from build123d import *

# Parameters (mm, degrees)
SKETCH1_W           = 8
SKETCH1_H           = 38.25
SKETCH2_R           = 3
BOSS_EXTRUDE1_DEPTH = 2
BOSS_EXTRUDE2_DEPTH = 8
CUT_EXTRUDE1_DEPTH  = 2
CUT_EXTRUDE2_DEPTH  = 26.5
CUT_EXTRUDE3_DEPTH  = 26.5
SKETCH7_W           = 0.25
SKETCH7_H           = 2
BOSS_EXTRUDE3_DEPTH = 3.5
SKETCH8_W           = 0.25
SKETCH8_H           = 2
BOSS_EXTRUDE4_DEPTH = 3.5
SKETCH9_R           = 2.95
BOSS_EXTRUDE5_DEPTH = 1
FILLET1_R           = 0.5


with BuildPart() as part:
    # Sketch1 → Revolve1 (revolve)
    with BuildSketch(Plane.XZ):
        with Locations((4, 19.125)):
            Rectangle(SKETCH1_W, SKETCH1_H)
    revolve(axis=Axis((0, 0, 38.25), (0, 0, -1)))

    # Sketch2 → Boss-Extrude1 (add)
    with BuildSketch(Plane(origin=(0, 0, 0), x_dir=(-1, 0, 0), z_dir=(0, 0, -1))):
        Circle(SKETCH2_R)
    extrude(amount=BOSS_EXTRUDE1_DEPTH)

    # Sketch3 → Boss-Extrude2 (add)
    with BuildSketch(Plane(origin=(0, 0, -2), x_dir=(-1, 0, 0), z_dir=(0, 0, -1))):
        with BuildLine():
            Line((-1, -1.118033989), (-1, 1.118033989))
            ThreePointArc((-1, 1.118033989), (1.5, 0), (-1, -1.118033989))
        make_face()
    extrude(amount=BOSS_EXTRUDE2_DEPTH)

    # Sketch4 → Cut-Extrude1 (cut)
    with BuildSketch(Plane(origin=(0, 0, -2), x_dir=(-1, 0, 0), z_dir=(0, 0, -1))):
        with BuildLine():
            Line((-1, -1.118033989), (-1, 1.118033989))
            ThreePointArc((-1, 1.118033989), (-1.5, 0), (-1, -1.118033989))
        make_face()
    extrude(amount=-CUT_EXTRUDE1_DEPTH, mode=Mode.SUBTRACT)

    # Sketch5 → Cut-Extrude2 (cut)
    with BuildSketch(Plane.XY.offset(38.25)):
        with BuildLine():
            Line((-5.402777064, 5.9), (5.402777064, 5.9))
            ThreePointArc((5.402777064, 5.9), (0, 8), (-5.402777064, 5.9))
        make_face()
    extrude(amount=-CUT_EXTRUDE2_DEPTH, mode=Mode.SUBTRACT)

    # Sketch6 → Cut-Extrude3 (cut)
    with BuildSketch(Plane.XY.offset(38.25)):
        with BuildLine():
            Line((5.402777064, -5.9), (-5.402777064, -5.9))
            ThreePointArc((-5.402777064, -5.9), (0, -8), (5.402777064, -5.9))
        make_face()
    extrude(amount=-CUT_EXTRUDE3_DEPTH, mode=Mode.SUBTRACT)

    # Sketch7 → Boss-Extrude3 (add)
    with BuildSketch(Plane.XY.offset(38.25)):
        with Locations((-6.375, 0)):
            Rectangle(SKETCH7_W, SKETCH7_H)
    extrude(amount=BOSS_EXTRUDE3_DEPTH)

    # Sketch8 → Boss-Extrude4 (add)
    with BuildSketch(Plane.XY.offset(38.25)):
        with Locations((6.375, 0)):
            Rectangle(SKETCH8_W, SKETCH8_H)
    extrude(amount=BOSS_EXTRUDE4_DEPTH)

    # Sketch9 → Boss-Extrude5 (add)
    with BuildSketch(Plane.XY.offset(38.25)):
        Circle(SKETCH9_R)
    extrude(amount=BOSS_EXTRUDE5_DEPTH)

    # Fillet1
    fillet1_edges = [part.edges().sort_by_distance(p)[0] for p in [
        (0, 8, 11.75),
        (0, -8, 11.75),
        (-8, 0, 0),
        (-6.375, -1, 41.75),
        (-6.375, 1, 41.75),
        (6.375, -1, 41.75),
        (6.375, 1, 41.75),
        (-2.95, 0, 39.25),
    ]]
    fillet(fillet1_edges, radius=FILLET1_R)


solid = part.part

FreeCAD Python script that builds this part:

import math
import FreeCAD as App
import Part
import Sketcher
from FreeCAD import Vector
Q = App.Units.Quantity


def edges_at(feature, points):
    """Names of the edges that pass closest to the given points."""
    edges = feature.Shape.Edges
    near = lambda p: min(range(len(edges)), key=lambda i: edges[i].distToShape(Part.Vertex(*p))[0])
    return sorted({f"Edge{near(p) + 1}" for p in points})

doc = App.newDocument("Part")
body = doc.addObject("PartDesign::Body", "Body")

sketch1 = body.newObject("Sketcher::SketchObject", "Sketch")
sketch1.AttachmentSupport = (doc.getObject("XZ_Plane"), [""])
sketch1.MapMode = "FlatFace"
sketch1.addGeometry([
    Part.LineSegment(Vector(0, 38.25, 0), Vector(0, 0, 0)),
    Part.LineSegment(Vector(0, 0, 0), Vector(8, 0, 0)),
    Part.LineSegment(Vector(8, 0, 0), Vector(8, 38.25, 0)),
    Part.LineSegment(Vector(8, 38.25, 0), Vector(0, 38.25, 0)),
], False)
sketch1.addConstraint([
    Sketcher.Constraint("Coincident", 0, 2, 1, 1),
    Sketcher.Constraint("Coincident", 1, 2, 2, 1),
    Sketcher.Constraint("Coincident", 2, 2, 3, 1),
    Sketcher.Constraint("Coincident", 3, 2, 0, 1),
    Sketcher.Constraint("Vertical", 0),
    Sketcher.Constraint("Horizontal", 1),
    Sketcher.Constraint("Vertical", 2),
    Sketcher.Constraint("Horizontal", 3),
    Sketcher.Constraint("Coincident", 0, 2, -1, 1),
    Sketcher.Constraint("DistanceX", 1, 1, 1, 2, Q("8 mm")),
    Sketcher.Constraint("DistanceY", 0, 2, 0, 1, Q("38.25 mm")),
])
revolution = body.newObject("PartDesign::Revolution", "Revolution")
revolution.Profile = sketch1
revolution.ReferenceAxis = (sketch1, ["V_Axis"])
revolution.Angle = 360

sketch2 = body.newObject("Sketcher::SketchObject", "Sketch001")
sketch2.AttachmentSupport = (doc.getObject("XY_Plane"), [""])
sketch2.MapMode = "FlatFace"
sketch2.addGeometry(Part.Circle(Vector(0, 0, 0), Vector(0, 0, 1), 3), False)
sketch2.addConstraint([
    Sketcher.Constraint("Coincident", 0, 3, -1, 1),
    Sketcher.Constraint("Diameter", 0, Q("6 mm")),
])
pad1 = body.newObject("PartDesign::Pad", "Pad")
pad1.Profile = sketch2
pad1.Length = 2
pad1.Reversed = True

sketch3 = body.newObject("Sketcher::SketchObject", "Sketch002")
sketch3.AttachmentSupport = (doc.getObject("XY_Plane"), [""])
sketch3.MapMode = "FlatFace"
sketch3.AttachmentOffset = App.Placement(Vector(0, 0, -2), App.Rotation())
sketch3.addGeometry([
    Part.LineSegment(Vector(1, 1.118034, 0), Vector(1, -1.118034, 0)),
    Part.ArcOfCircle(Part.Circle(Vector(0, 0, 0), Vector(0, 0, 1), 1.5), math.radians(48.189685), math.radians(311.810315)),
], False)
sketch3.addConstraint([
    Sketcher.Constraint("Coincident", 0, 1, 1, 1),
    Sketcher.Constraint("Coincident", 1, 2, 0, 2),
    Sketcher.Constraint("Vertical", 0),
    Sketcher.Constraint("Coincident", 1, 3, -1, 1),
    Sketcher.Constraint("Radius", 1, Q("1.5 mm")),
    Sketcher.Constraint("DistanceX", -1, 1, 0, 1, Q("1 mm")),
])
pad2 = body.newObject("PartDesign::Pad", "Pad001")
pad2.Profile = sketch3
pad2.Length = 8
pad2.Reversed = True

sketch4 = body.newObject("Sketcher::SketchObject", "Sketch003")
sketch4.AttachmentSupport = (doc.getObject("XY_Plane"), [""])
sketch4.MapMode = "FlatFace"
sketch4.AttachmentOffset = App.Placement(Vector(0, 0, -2), App.Rotation())
sketch4.addGeometry([
    Part.LineSegment(Vector(1, -1.118034, 0), Vector(1, 1.118034, 0)),
    Part.ArcOfCircle(Part.Circle(Vector(0, 0, 0), Vector(0, 0, 1), 1.5), math.radians(-48.189685), math.radians(48.189685)),
], False)
sketch4.addConstraint([
    Sketcher.Constraint("Coincident", 0, 1, 1, 1),
    Sketcher.Constraint("Coincident", 1, 2, 0, 2),
    Sketcher.Constraint("Vertical", 0),
    Sketcher.Constraint("Coincident", 1, 3, -1, 1),
    Sketcher.Constraint("Radius", 1, Q("1.5 mm")),
    Sketcher.Constraint("DistanceX", -1, 1, 0, 1, Q("1 mm")),
])
pocket1 = body.newObject("PartDesign::Pocket", "Pocket")
pocket1.Profile = sketch4
pocket1.Length = 2
pocket1.Reversed = True

sketch5 = body.newObject("Sketcher::SketchObject", "Sketch004")
sketch5.AttachmentSupport = (doc.getObject("XY_Plane"), [""])
sketch5.MapMode = "FlatFace"
sketch5.AttachmentOffset = App.Placement(Vector(0, 0, 38.25), App.Rotation())
sketch5.addGeometry([
    Part.LineSegment(Vector(-5.402777, 5.9, 0), Vector(5.402777, 5.9, 0)),
    Part.ArcOfCircle(Part.Circle(Vector(0, 0, 0), Vector(0, 0, 1), 8), math.radians(47.518887), math.radians(132.481113)),
], False)
sketch5.addConstraint([
    Sketcher.Constraint("Coincident", 0, 1, 1, 2),
    Sketcher.Constraint("Coincident", 1, 1, 0, 2),
    Sketcher.Constraint("Horizontal", 0),
    Sketcher.Constraint("Coincident", 1, 3, -1, 1),
    Sketcher.Constraint("Radius", 1, Q("8 mm")),
    Sketcher.Constraint("DistanceY", -1, 1, 0, 1, Q("5.9 mm")),
])
pocket2 = body.newObject("PartDesign::Pocket", "Pocket001")
pocket2.Profile = sketch5
pocket2.Length = 26.5

sketch6 = body.newObject("Sketcher::SketchObject", "Sketch005")
sketch6.AttachmentSupport = (doc.getObject("XY_Plane"), [""])
sketch6.MapMode = "FlatFace"
sketch6.AttachmentOffset = App.Placement(Vector(0, 0, 38.25), App.Rotation())
sketch6.addGeometry([
    Part.LineSegment(Vector(5.402777, -5.9, 0), Vector(-5.402777, -5.9, 0)),
    Part.ArcOfCircle(Part.Circle(Vector(0, 0, 0), Vector(0, 0, 1), 8), math.radians(-132.481113), math.radians(-47.518887)),
], False)
sketch6.addConstraint([
    Sketcher.Constraint("Coincident", 0, 1, 1, 2),
    Sketcher.Constraint("Coincident", 1, 1, 0, 2),
    Sketcher.Constraint("Horizontal", 0),
    Sketcher.Constraint("Coincident", 1, 3, -1, 1),
    Sketcher.Constraint("Radius", 1, Q("8 mm")),
    Sketcher.Constraint("DistanceY", 0, 1, -1, 1, Q("5.9 mm")),
])
pocket3 = body.newObject("PartDesign::Pocket", "Pocket002")
pocket3.Profile = sketch6
pocket3.Length = 26.5

sketch7 = body.newObject("Sketcher::SketchObject", "Sketch006")
sketch7.AttachmentSupport = (doc.getObject("XY_Plane"), [""])
sketch7.MapMode = "FlatFace"
sketch7.AttachmentOffset = App.Placement(Vector(0, 0, 38.25), App.Rotation())
sketch7.addGeometry([
    Part.LineSegment(Vector(-6.5, 1, 0), Vector(-6.5, -1, 0)),
    Part.LineSegment(Vector(-6.5, -1, 0), Vector(-6.25, -1, 0)),
    Part.LineSegment(Vector(-6.25, -1, 0), Vector(-6.25, 1, 0)),
    Part.LineSegment(Vector(-6.25, 1, 0), Vector(-6.5, 1, 0)),
], False)
sketch7.addConstraint([
    Sketcher.Constraint("Coincident", 0, 2, 1, 1),
    Sketcher.Constraint("Coincident", 1, 2, 2, 1),
    Sketcher.Constraint("Coincident", 2, 2, 3, 1),
    Sketcher.Constraint("Coincident", 3, 2, 0, 1),
    Sketcher.Constraint("Vertical", 0),
    Sketcher.Constraint("Horizontal", 1),
    Sketcher.Constraint("Vertical", 2),
    Sketcher.Constraint("Horizontal", 3),
    Sketcher.Constraint("DistanceY", 0, 2, 0, 1, Q("2 mm")),
    Sketcher.Constraint("DistanceY", 0, 2, -1, 1, Q("1 mm")),
    Sketcher.Constraint("DistanceX", 1, 1, 1, 2, Q("0.25 mm")),
    Sketcher.Constraint("DistanceX", 0, 2, -1, 1, Q("6.5 mm")),
])
pad3 = body.newObject("PartDesign::Pad", "Pad002")
pad3.Profile = sketch7
pad3.Length = 3.5

sketch8 = body.newObject("Sketcher::SketchObject", "Sketch007")
sketch8.AttachmentSupport = (doc.getObject("XY_Plane"), [""])
sketch8.MapMode = "FlatFace"
sketch8.AttachmentOffset = App.Placement(Vector(0, 0, 38.25), App.Rotation())
sketch8.addGeometry([
    Part.LineSegment(Vector(6.25, 1, 0), Vector(6.25, -1, 0)),
    Part.LineSegment(Vector(6.25, -1, 0), Vector(6.5, -1, 0)),
    Part.LineSegment(Vector(6.5, -1, 0), Vector(6.5, 1, 0)),
    Part.LineSegment(Vector(6.5, 1, 0), Vector(6.25, 1, 0)),
], False)
sketch8.addConstraint([
    Sketcher.Constraint("Coincident", 0, 2, 1, 1),
    Sketcher.Constraint("Coincident", 1, 2, 2, 1),
    Sketcher.Constraint("Coincident", 2, 2, 3, 1),
    Sketcher.Constraint("Coincident", 3, 2, 0, 1),
    Sketcher.Constraint("Vertical", 0),
    Sketcher.Constraint("Horizontal", 1),
    Sketcher.Constraint("Vertical", 2),
    Sketcher.Constraint("Horizontal", 3),
    Sketcher.Constraint("DistanceY", 0, 2, 0, 1, Q("2 mm")),
    Sketcher.Constraint("DistanceY", 0, 2, -1, 1, Q("1 mm")),
    Sketcher.Constraint("DistanceX", 1, 1, 1, 2, Q("0.25 mm")),
    Sketcher.Constraint("DistanceX", -1, 1, 1, 2, Q("6.5 mm")),
])
pad4 = body.newObject("PartDesign::Pad", "Pad003")
pad4.Profile = sketch8
pad4.Length = 3.5

sketch9 = body.newObject("Sketcher::SketchObject", "Sketch008")
sketch9.AttachmentSupport = (doc.getObject("XY_Plane"), [""])
sketch9.MapMode = "FlatFace"
sketch9.AttachmentOffset = App.Placement(Vector(0, 0, 38.25), App.Rotation())
sketch9.addGeometry(Part.Circle(Vector(0, 0, 0), Vector(0, 0, 1), 2.95), False)
sketch9.addConstraint([
    Sketcher.Constraint("Coincident", 0, 3, -1, 1),
    Sketcher.Constraint("Diameter", 0, Q("5.9 mm")),
])
pad5 = body.newObject("PartDesign::Pad", "Pad004")
pad5.Profile = sketch9
pad5.Length = 1
doc.recompute()

fillet = body.newObject("PartDesign::Fillet", "Fillet")
fillet.Base = (pad5, edges_at(pad5, [
    (0, 8, 11.75),
    (0, -8, 11.75),
    (-8, 0, 0),
    (-6.375, -1, 41.75),
    (-6.375, 1, 41.75),
    (6.375, -1, 41.75),
    (6.375, 1, 41.75),
    (-2.95, 0, 39.25),
]))
fillet.Radius = 0.5

doc.recompute()
